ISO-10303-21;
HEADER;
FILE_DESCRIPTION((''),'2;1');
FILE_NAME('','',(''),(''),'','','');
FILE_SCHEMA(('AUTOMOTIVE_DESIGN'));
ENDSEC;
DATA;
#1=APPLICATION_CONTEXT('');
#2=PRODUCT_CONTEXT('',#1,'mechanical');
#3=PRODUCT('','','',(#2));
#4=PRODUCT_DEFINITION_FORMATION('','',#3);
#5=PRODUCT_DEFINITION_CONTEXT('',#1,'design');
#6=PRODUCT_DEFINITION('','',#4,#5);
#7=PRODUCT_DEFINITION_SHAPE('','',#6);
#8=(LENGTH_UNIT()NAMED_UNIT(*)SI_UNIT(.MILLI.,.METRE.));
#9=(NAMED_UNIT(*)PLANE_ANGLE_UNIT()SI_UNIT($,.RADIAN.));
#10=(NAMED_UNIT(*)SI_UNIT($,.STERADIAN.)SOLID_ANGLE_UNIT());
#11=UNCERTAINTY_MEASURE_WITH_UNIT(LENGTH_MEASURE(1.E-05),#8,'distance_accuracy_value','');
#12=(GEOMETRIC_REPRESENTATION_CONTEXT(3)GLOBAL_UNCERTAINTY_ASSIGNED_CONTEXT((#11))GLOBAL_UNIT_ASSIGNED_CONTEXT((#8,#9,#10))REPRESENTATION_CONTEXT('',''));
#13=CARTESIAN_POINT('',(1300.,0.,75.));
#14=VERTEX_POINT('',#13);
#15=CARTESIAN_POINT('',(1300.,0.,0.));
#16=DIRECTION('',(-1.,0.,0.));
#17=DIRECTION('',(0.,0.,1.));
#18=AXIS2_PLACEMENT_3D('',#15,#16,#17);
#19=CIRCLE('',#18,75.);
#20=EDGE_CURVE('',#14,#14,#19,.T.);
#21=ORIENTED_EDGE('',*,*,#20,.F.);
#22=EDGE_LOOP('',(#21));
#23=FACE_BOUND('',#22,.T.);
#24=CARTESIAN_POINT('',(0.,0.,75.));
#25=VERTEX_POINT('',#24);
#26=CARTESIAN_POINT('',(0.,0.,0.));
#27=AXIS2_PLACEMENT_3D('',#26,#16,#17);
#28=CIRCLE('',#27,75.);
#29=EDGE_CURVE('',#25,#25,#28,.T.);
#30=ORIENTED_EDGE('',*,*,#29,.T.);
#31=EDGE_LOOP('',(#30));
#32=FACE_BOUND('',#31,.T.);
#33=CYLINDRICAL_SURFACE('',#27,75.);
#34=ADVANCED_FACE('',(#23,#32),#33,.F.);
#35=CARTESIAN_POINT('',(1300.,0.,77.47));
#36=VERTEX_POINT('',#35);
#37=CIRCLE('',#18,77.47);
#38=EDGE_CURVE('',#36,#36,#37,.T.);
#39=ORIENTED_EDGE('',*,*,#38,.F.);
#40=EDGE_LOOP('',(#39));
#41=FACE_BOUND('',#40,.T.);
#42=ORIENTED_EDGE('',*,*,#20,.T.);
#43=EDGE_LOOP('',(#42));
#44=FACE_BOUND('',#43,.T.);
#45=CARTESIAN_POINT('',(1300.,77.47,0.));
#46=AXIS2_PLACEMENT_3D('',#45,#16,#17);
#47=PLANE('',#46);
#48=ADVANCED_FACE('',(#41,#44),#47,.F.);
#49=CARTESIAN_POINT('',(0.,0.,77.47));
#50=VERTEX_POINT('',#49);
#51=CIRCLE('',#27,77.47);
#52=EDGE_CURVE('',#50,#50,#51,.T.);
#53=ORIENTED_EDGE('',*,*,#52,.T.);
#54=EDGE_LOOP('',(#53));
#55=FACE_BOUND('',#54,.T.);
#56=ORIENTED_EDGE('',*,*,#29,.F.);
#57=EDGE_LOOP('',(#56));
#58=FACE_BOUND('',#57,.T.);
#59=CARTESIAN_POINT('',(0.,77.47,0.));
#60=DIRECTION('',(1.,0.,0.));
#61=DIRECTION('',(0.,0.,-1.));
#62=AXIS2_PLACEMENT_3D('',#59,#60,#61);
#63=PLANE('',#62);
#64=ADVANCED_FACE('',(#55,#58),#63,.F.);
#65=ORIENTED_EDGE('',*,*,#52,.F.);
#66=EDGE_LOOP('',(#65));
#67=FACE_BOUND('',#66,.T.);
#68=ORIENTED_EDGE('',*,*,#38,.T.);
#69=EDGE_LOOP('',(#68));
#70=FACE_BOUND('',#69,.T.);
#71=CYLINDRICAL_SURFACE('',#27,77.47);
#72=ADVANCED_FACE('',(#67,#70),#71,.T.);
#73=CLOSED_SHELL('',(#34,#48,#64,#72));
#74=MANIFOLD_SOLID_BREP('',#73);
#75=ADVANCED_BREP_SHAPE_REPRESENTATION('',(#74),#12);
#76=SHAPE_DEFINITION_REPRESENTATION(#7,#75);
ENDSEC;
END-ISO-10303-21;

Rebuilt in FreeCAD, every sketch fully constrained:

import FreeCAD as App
import Part
import Sketcher

V = App.Vector

doc = App.newDocument("Part")
body = doc.addObject("PartDesign::Body", "Body")

sketch1 = body.newObject("Sketcher::SketchObject", "Sketch")
sketch1.AttachmentSupport = (doc.getObject("XY_Plane"), [""])
sketch1.MapMode = "FlatFace"
sketch1.addGeometry([
    Part.LineSegment(V(0, 77.5, 0), V(0, 75, 0)),
    Part.LineSegment(V(0, 75, 0), V(1300, 75, 0)),
    Part.LineSegment(V(1300, 75, 0), V(1300, 77.5, 0)),
    Part.LineSegment(V(1300, 77.5, 0), V(0, 77.5, 0)),
], False)
sketch1.addConstraint([
    Sketcher.Constraint("Coincident", 0, 2, 1, 1),
    Sketcher.Constraint("Coincident", 1, 2, 2, 1),
    Sketcher.Constraint("Coincident", 2, 2, 3, 1),
    Sketcher.Constraint("Coincident", 3, 2, 0, 1),
    Sketcher.Constraint("Vertical", 0),
    Sketcher.Constraint("Horizontal", 1),
    Sketcher.Constraint("Vertical", 2),
    Sketcher.Constraint("Horizontal", 3),
    Sketcher.Constraint("PointOnObject", 0, 2, -2),
    Sketcher.Constraint("DistanceX", 1, 1, 1, 2, 1300.0),
    Sketcher.Constraint("DistanceY", -1, 1, 0, 2, 75.0),
    Sketcher.Constraint("DistanceY", 0, 2, 0, 1, 2.47),
])
revolution = body.newObject("PartDesign::Revolution", "Revolution")
revolution.Profile = sketch1
revolution.ReferenceAxis = (sketch1, ["H_Axis"])
revolution.Angle = 360

doc.recompute()
